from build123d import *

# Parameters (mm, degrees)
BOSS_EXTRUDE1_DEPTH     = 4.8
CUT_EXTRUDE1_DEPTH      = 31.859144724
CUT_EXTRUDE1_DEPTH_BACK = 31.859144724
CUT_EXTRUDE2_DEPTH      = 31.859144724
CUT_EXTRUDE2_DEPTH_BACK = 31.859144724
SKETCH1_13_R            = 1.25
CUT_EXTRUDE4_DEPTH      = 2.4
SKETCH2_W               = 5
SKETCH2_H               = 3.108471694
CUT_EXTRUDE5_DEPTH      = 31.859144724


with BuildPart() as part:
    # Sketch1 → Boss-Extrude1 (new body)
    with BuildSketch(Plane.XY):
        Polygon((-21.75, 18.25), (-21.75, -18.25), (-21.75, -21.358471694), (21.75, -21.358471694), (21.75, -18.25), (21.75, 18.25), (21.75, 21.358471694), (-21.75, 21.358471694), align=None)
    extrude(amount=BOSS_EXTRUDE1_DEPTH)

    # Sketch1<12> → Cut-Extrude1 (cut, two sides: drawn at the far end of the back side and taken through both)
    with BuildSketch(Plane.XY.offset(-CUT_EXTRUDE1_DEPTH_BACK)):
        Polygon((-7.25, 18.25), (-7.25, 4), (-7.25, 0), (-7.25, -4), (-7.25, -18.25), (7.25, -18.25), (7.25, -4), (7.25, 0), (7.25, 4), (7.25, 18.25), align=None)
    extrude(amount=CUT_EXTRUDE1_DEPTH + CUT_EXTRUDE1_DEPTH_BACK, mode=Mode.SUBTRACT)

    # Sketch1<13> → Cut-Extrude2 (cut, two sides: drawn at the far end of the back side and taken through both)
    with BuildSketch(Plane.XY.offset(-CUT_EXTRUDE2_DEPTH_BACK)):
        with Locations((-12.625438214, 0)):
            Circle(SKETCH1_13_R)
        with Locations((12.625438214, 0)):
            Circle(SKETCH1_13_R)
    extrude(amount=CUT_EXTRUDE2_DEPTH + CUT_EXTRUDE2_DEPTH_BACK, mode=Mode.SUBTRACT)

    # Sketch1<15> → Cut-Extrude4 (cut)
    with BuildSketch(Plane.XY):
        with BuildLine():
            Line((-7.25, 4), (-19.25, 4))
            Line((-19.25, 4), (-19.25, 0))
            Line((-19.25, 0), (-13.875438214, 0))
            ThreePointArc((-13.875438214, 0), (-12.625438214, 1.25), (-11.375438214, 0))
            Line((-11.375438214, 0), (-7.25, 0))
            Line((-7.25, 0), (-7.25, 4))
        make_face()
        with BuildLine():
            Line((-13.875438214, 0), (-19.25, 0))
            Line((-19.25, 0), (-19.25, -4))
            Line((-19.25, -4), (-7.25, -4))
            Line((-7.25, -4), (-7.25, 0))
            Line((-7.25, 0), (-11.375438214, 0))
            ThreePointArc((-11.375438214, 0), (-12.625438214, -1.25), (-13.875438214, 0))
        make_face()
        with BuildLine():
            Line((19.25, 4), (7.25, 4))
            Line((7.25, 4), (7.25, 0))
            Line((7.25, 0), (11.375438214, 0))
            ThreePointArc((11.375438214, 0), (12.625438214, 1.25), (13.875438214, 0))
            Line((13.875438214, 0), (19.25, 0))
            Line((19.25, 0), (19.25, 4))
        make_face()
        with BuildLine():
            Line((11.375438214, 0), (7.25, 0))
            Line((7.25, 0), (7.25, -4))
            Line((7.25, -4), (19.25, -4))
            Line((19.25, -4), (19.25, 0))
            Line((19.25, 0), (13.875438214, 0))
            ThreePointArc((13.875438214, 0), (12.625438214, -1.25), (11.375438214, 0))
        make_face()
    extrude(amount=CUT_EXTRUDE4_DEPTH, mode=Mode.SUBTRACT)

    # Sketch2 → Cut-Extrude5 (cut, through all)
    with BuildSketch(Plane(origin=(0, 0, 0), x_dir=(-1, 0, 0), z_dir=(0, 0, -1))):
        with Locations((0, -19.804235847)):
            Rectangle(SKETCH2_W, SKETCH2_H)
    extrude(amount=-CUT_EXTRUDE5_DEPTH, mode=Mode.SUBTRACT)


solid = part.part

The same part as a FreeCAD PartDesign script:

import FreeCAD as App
import Part
import Sketcher
from FreeCAD import Vector

doc = App.newDocument("Part")
body = doc.addObject("PartDesign::Body", "Body")

# Sketch on XY plane
sketch1 = doc.addObject("Sketcher::SketchObject", "Sketch")
body.addObject(sketch1)
sketch1.AttachmentSupport = (doc.XY_Plane, [""])
sketch1.MapMode = "FlatFace"
sketch1.addGeometry(Part.LineSegment(Vector(-22, -21, 0), Vector(22, -21, 0)), False)
sketch1.addGeometry(Part.LineSegment(Vector(22, -21, 0), Vector(22, 21, 0)), False)
sketch1.addGeometry(Part.LineSegment(Vector(22, 21, 0), Vector(-22, 21, 0)), False)
sketch1.addGeometry(Part.LineSegment(Vector(-22, 21, 0), Vector(-22, -21, 0)), False)
sketch1.addConstraint(Sketcher.Constraint("Coincident", 0, 2, 1, 1))
sketch1.addConstraint(Sketcher.Constraint("Coincident", 1, 2, 2, 1))
sketch1.addConstraint(Sketcher.Constraint("Coincident", 2, 2, 3, 1))
sketch1.addConstraint(Sketcher.Constraint("Coincident", 3, 2, 0, 1))
sketch1.addConstraint(Sketcher.Constraint("Horizontal", 0))
sketch1.addConstraint(Sketcher.Constraint("Vertical", 1))
sketch1.addConstraint(Sketcher.Constraint("Horizontal", 2))
sketch1.addConstraint(Sketcher.Constraint("Vertical", 3))
sketch1.addConstraint(Sketcher.Constraint("Symmetric", 0, 2, 2, 2, -1, 1))
sketch1.addConstraint(Sketcher.Constraint("DistanceX", 0, 1, 0, 2, 43.5))
sketch1.addConstraint(Sketcher.Constraint("DistanceY", 1, 1, 1, 2, 42.716943))
pad1 = doc.addObject("PartDesign::Pad", "Pad")
body.addObject(pad1)
pad1.Profile = sketch1
pad1.Length = 4.8

# Sketch on XY plane
sketch2 = doc.addObject("Sketcher::SketchObject", "Sketch001")
body.addObject(sketch2)
sketch2.AttachmentSupport = (doc.XY_Plane, [""])
sketch2.MapMode = "FlatFace"
sketch2.addGeometry(Part.LineSegment(Vector(-7, 18, 0), Vector(-7, -18, 0)), False)
sketch2.addGeometry(Part.LineSegment(Vector(-7, -18, 0), Vector(7, -18, 0)), False)
sketch2.addGeometry(Part.LineSegment(Vector(7, -18, 0), Vector(7, 18, 0)), False)
sketch2.addGeometry(Part.LineSegment(Vector(7, 18, 0), Vector(-7, 18, 0)), False)
sketch2.addConstraint(Sketcher.Constraint("Coincident", 0, 2, 1, 1))
sketch2.addConstraint(Sketcher.Constraint("Coincident", 1, 2, 2, 1))
sketch2.addConstraint(Sketcher.Constraint("Coincident", 2, 2, 3, 1))
sketch2.addConstraint(Sketcher.Constraint("Coincident", 3, 2, 0, 1))
sketch2.addConstraint(Sketcher.Constraint("Vertical", 0))
sketch2.addConstraint(Sketcher.Constraint("Horizontal", 1))
sketch2.addConstraint(Sketcher.Constraint("Vertical", 2))
sketch2.addConstraint(Sketcher.Constraint("Horizontal", 3))
sketch2.addConstraint(Sketcher.Constraint("Symmetric", 0, 2, 2, 2, -1, 1))
sketch2.addConstraint(Sketcher.Constraint("DistanceX", 1, 1, 1, 2, 14.5))
sketch2.addConstraint(Sketcher.Constraint("DistanceY", 0, 2, 0, 1, 36.5))
pocket1 = doc.addObject("PartDesign::Pocket", "Pocket")
body.addObject(pocket1)
pocket1.Profile = sketch2
pocket1.Type = "ThroughAll"
pocket1.Midplane = True

# Sketch on XY plane
sketch3 = doc.addObject("Sketcher::SketchObject", "Sketch002")
body.addObject(sketch3)
sketch3.AttachmentSupport = (doc.XY_Plane, [""])
sketch3.MapMode = "FlatFace"
sketch3.addGeometry(Part.Circle(Vector(-12.6, 0, 0), Vector(0, 0, 1), 1.2), False)
sketch3.addGeometry(Part.Circle(Vector(12.6, 0, 0), Vector(0, 0, 1), 1.2), False)
sketch3.addConstraint(Sketcher.Constraint("Equal", 0, 1))
sketch3.addConstraint(Sketcher.Constraint("Symmetric", 0, 3, 1, 3, -1, 1))
sketch3.addConstraint(Sketcher.Constraint("PointOnObject", 0, 3, -1))
sketch3.addConstraint(Sketcher.Constraint("Diameter", 0, 2.5))
sketch3.addConstraint(Sketcher.Constraint("DistanceX", 0, 3, -1, 1, 12.625438))
pocket2 = doc.addObject("PartDesign::Pocket", "Pocket001")
body.addObject(pocket2)
pocket2.Profile = sketch3
pocket2.Type = "ThroughAll"
pocket2.Midplane = True

# Sketch on XY plane
sketch4 = doc.addObject("Sketcher::SketchObject", "Sketch003")
body.addObject(sketch4)
sketch4.AttachmentSupport = (doc.XY_Plane, [""])
sketch4.MapMode = "FlatFace"
sketch4.addGeometry(Part.LineSegment(Vector(-7.2, 4, 0), Vector(-19.2, 4, 0)), False)
sketch4.addGeometry(Part.LineSegment(Vector(-19.2, 4, 0), Vector(-19.2, -4, 0)), False)
sketch4.addGeometry(Part.LineSegment(Vector(-19.2, -4, 0), Vector(-7.2, -4, 0)), False)
sketch4.addGeometry(Part.LineSegment(Vector(-7.2, -4, 0), Vector(-7.2, 4, 0)), False)
sketch4.addGeometry(Part.Circle(Vector(-12.6, 0, 0), Vector(0, 0, 1), 1.2), False)
sketch4.addGeometry(Part.LineSegment(Vector(19.2, 4, 0), Vector(7.2, 4, 0)), False)
sketch4.addGeometry(Part.LineSegment(Vector(7.2, 4, 0), Vector(7.2, -4, 0)), False)
sketch4.addGeometry(Part.LineSegment(Vector(7.2, -4, 0), Vector(19.2, -4, 0)), False)
sketch4.addGeometry(Part.LineSegment(Vector(19.2, -4, 0), Vector(19.2, 4, 0)), False)
sketch4.addGeometry(Part.Circle(Vector(12.6, 0, 0), Vector(0, 0, 1), 1.2), False)
sketch4.addConstraint(Sketcher.Constraint("Coincident", 0, 2, 1, 1))
sketch4.addConstraint(Sketcher.Constraint("Coincident", 1, 2, 2, 1))
sketch4.addConstraint(Sketcher.Constraint("Coincident", 2, 2, 3, 1))
sketch4.addConstraint(Sketcher.Constraint("Coincident", 3, 2, 0, 1))
sketch4.addConstraint(Sketcher.Constraint("Coincident", 5, 2, 6, 1))
sketch4.addConstraint(Sketcher.Constraint("Coincident", 6, 2, 7, 1))
sketch4.addConstraint(Sketcher.Constraint("Coincident", 7, 2, 8, 1))
sketch4.addConstraint(Sketcher.Constraint("Coincident", 8, 2, 5, 1))
sketch4.addConstraint(Sketcher.Constraint("Horizontal", 0))
sketch4.addConstraint(Sketcher.Constraint("Vertical", 1))
sketch4.addConstraint(Sketcher.Constraint("Horizontal", 2))
sketch4.addConstraint(Sketcher.Constraint("Vertical", 3))
sketch4.addConstraint(Sketcher.Constraint("Horizontal", 5))
sketch4.addConstraint(Sketcher.Constraint("Vertical", 6))
sketch4.addConstraint(Sketcher.Constraint("Horizontal", 7))
sketch4.addConstraint(Sketcher.Constraint("Vertical", 8))
sketch4.addConstraint(Sketcher.Constraint("Equal", 4, 9))
sketch4.addConstraint(Sketcher.Constraint("Symmetric", 4, 3, 9, 3, -1, 1))
sketch4.addConstraint(Sketcher.Constraint("Symmetric", 2, 2, 5, 2, -1, 1))
sketch4.addConstraint(Sketcher.Constraint("Symmetric", 0, 2, 7, 2, -1, 1))
sketch4.addConstraint(Sketcher.Constraint("PointOnObject", 4, 3, -1))
sketch4.addConstraint(Sketcher.Constraint("Horizontal", 3, 2, 5, 2))
sketch4.addConstraint(Sketcher.Constraint("Diameter", 4, 2.5))
sketch4.addConstraint(Sketcher.Constraint("DistanceX", 0, 2, 0, 1, 12.0))
sketch4.addConstraint(Sketcher.Constraint("DistanceY", 1, 2, 1, 1, 8.0))
sketch4.addConstraint(Sketcher.Constraint("DistanceX", 3, 2, 5, 2, 14.5))
sketch4.addConstraint(Sketcher.Constraint("DistanceX", 4, 3, -1, 1, 12.625438))
pocket3 = doc.addObject("PartDesign::Pocket", "Pocket002")
body.addObject(pocket3)
pocket3.Profile = sketch4
pocket3.Length = 2.4
pocket3.Reversed = True

# Sketch on XY plane
sketch5 = doc.addObject("Sketcher::SketchObject", "Sketch004")
body.addObject(sketch5)
sketch5.AttachmentSupport = (doc.XY_Plane, [""])
sketch5.MapMode = "FlatFace"
sketch5.addGeometry(Part.LineSegment(Vector(2.5, -18.2, 0), Vector(2.5, -21.4, 0)), False)
sketch5.addGeometry(Part.LineSegment(Vector(2.5, -21.4, 0), Vector(-2.5, -21.4, 0)), False)
sketch5.addGeometry(Part.LineSegment(Vector(-2.5, -21.4, 0), Vector(-2.5, -18.2, 0)), False)
sketch5.addGeometry(Part.LineSegment(Vector(-2.5, -18.2, 0), Vector(2.5, -18.2, 0)), False)
sketch5.addConstraint(Sketcher.Constraint("Coincident", 0, 2, 1, 1))
sketch5.addConstraint(Sketcher.Constraint("Coincident", 1, 2, 2, 1))
sketch5.addConstraint(Sketcher.Constraint("Coincident", 2, 2, 3, 1))
sketch5.addConstraint(Sketcher.Constraint("Coincident", 3, 2, 0, 1))
sketch5.addConstraint(Sketcher.Constraint("Vertical", 0))
sketch5.addConstraint(Sketcher.Constraint("Horizontal", 1))
sketch5.addConstraint(Sketcher.Constraint("Vertical", 2))
sketch5.addConstraint(Sketcher.Constraint("Horizontal", 3))
sketch5.addConstraint(Sketcher.Constraint("DistanceX", 1, 2, 1, 1, 5.0))
sketch5.addConstraint(Sketcher.Constraint("DistanceX", -1, 1, 0, 2, 2.5))
sketch5.addConstraint(Sketcher.Constraint("DistanceY", 2, 2, -1, 1, 18.25))
sketch5.addConstraint(Sketcher.Constraint("DistanceY", 0, 2, 0, 1, 3.108472))
pocket4 = doc.addObject("PartDesign::Pocket", "Pocket003")
body.addObject(pocket4)
pocket4.Profile = sketch5
pocket4.Type = "ThroughAll"
pocket4.Reversed = True

doc.recompute()
